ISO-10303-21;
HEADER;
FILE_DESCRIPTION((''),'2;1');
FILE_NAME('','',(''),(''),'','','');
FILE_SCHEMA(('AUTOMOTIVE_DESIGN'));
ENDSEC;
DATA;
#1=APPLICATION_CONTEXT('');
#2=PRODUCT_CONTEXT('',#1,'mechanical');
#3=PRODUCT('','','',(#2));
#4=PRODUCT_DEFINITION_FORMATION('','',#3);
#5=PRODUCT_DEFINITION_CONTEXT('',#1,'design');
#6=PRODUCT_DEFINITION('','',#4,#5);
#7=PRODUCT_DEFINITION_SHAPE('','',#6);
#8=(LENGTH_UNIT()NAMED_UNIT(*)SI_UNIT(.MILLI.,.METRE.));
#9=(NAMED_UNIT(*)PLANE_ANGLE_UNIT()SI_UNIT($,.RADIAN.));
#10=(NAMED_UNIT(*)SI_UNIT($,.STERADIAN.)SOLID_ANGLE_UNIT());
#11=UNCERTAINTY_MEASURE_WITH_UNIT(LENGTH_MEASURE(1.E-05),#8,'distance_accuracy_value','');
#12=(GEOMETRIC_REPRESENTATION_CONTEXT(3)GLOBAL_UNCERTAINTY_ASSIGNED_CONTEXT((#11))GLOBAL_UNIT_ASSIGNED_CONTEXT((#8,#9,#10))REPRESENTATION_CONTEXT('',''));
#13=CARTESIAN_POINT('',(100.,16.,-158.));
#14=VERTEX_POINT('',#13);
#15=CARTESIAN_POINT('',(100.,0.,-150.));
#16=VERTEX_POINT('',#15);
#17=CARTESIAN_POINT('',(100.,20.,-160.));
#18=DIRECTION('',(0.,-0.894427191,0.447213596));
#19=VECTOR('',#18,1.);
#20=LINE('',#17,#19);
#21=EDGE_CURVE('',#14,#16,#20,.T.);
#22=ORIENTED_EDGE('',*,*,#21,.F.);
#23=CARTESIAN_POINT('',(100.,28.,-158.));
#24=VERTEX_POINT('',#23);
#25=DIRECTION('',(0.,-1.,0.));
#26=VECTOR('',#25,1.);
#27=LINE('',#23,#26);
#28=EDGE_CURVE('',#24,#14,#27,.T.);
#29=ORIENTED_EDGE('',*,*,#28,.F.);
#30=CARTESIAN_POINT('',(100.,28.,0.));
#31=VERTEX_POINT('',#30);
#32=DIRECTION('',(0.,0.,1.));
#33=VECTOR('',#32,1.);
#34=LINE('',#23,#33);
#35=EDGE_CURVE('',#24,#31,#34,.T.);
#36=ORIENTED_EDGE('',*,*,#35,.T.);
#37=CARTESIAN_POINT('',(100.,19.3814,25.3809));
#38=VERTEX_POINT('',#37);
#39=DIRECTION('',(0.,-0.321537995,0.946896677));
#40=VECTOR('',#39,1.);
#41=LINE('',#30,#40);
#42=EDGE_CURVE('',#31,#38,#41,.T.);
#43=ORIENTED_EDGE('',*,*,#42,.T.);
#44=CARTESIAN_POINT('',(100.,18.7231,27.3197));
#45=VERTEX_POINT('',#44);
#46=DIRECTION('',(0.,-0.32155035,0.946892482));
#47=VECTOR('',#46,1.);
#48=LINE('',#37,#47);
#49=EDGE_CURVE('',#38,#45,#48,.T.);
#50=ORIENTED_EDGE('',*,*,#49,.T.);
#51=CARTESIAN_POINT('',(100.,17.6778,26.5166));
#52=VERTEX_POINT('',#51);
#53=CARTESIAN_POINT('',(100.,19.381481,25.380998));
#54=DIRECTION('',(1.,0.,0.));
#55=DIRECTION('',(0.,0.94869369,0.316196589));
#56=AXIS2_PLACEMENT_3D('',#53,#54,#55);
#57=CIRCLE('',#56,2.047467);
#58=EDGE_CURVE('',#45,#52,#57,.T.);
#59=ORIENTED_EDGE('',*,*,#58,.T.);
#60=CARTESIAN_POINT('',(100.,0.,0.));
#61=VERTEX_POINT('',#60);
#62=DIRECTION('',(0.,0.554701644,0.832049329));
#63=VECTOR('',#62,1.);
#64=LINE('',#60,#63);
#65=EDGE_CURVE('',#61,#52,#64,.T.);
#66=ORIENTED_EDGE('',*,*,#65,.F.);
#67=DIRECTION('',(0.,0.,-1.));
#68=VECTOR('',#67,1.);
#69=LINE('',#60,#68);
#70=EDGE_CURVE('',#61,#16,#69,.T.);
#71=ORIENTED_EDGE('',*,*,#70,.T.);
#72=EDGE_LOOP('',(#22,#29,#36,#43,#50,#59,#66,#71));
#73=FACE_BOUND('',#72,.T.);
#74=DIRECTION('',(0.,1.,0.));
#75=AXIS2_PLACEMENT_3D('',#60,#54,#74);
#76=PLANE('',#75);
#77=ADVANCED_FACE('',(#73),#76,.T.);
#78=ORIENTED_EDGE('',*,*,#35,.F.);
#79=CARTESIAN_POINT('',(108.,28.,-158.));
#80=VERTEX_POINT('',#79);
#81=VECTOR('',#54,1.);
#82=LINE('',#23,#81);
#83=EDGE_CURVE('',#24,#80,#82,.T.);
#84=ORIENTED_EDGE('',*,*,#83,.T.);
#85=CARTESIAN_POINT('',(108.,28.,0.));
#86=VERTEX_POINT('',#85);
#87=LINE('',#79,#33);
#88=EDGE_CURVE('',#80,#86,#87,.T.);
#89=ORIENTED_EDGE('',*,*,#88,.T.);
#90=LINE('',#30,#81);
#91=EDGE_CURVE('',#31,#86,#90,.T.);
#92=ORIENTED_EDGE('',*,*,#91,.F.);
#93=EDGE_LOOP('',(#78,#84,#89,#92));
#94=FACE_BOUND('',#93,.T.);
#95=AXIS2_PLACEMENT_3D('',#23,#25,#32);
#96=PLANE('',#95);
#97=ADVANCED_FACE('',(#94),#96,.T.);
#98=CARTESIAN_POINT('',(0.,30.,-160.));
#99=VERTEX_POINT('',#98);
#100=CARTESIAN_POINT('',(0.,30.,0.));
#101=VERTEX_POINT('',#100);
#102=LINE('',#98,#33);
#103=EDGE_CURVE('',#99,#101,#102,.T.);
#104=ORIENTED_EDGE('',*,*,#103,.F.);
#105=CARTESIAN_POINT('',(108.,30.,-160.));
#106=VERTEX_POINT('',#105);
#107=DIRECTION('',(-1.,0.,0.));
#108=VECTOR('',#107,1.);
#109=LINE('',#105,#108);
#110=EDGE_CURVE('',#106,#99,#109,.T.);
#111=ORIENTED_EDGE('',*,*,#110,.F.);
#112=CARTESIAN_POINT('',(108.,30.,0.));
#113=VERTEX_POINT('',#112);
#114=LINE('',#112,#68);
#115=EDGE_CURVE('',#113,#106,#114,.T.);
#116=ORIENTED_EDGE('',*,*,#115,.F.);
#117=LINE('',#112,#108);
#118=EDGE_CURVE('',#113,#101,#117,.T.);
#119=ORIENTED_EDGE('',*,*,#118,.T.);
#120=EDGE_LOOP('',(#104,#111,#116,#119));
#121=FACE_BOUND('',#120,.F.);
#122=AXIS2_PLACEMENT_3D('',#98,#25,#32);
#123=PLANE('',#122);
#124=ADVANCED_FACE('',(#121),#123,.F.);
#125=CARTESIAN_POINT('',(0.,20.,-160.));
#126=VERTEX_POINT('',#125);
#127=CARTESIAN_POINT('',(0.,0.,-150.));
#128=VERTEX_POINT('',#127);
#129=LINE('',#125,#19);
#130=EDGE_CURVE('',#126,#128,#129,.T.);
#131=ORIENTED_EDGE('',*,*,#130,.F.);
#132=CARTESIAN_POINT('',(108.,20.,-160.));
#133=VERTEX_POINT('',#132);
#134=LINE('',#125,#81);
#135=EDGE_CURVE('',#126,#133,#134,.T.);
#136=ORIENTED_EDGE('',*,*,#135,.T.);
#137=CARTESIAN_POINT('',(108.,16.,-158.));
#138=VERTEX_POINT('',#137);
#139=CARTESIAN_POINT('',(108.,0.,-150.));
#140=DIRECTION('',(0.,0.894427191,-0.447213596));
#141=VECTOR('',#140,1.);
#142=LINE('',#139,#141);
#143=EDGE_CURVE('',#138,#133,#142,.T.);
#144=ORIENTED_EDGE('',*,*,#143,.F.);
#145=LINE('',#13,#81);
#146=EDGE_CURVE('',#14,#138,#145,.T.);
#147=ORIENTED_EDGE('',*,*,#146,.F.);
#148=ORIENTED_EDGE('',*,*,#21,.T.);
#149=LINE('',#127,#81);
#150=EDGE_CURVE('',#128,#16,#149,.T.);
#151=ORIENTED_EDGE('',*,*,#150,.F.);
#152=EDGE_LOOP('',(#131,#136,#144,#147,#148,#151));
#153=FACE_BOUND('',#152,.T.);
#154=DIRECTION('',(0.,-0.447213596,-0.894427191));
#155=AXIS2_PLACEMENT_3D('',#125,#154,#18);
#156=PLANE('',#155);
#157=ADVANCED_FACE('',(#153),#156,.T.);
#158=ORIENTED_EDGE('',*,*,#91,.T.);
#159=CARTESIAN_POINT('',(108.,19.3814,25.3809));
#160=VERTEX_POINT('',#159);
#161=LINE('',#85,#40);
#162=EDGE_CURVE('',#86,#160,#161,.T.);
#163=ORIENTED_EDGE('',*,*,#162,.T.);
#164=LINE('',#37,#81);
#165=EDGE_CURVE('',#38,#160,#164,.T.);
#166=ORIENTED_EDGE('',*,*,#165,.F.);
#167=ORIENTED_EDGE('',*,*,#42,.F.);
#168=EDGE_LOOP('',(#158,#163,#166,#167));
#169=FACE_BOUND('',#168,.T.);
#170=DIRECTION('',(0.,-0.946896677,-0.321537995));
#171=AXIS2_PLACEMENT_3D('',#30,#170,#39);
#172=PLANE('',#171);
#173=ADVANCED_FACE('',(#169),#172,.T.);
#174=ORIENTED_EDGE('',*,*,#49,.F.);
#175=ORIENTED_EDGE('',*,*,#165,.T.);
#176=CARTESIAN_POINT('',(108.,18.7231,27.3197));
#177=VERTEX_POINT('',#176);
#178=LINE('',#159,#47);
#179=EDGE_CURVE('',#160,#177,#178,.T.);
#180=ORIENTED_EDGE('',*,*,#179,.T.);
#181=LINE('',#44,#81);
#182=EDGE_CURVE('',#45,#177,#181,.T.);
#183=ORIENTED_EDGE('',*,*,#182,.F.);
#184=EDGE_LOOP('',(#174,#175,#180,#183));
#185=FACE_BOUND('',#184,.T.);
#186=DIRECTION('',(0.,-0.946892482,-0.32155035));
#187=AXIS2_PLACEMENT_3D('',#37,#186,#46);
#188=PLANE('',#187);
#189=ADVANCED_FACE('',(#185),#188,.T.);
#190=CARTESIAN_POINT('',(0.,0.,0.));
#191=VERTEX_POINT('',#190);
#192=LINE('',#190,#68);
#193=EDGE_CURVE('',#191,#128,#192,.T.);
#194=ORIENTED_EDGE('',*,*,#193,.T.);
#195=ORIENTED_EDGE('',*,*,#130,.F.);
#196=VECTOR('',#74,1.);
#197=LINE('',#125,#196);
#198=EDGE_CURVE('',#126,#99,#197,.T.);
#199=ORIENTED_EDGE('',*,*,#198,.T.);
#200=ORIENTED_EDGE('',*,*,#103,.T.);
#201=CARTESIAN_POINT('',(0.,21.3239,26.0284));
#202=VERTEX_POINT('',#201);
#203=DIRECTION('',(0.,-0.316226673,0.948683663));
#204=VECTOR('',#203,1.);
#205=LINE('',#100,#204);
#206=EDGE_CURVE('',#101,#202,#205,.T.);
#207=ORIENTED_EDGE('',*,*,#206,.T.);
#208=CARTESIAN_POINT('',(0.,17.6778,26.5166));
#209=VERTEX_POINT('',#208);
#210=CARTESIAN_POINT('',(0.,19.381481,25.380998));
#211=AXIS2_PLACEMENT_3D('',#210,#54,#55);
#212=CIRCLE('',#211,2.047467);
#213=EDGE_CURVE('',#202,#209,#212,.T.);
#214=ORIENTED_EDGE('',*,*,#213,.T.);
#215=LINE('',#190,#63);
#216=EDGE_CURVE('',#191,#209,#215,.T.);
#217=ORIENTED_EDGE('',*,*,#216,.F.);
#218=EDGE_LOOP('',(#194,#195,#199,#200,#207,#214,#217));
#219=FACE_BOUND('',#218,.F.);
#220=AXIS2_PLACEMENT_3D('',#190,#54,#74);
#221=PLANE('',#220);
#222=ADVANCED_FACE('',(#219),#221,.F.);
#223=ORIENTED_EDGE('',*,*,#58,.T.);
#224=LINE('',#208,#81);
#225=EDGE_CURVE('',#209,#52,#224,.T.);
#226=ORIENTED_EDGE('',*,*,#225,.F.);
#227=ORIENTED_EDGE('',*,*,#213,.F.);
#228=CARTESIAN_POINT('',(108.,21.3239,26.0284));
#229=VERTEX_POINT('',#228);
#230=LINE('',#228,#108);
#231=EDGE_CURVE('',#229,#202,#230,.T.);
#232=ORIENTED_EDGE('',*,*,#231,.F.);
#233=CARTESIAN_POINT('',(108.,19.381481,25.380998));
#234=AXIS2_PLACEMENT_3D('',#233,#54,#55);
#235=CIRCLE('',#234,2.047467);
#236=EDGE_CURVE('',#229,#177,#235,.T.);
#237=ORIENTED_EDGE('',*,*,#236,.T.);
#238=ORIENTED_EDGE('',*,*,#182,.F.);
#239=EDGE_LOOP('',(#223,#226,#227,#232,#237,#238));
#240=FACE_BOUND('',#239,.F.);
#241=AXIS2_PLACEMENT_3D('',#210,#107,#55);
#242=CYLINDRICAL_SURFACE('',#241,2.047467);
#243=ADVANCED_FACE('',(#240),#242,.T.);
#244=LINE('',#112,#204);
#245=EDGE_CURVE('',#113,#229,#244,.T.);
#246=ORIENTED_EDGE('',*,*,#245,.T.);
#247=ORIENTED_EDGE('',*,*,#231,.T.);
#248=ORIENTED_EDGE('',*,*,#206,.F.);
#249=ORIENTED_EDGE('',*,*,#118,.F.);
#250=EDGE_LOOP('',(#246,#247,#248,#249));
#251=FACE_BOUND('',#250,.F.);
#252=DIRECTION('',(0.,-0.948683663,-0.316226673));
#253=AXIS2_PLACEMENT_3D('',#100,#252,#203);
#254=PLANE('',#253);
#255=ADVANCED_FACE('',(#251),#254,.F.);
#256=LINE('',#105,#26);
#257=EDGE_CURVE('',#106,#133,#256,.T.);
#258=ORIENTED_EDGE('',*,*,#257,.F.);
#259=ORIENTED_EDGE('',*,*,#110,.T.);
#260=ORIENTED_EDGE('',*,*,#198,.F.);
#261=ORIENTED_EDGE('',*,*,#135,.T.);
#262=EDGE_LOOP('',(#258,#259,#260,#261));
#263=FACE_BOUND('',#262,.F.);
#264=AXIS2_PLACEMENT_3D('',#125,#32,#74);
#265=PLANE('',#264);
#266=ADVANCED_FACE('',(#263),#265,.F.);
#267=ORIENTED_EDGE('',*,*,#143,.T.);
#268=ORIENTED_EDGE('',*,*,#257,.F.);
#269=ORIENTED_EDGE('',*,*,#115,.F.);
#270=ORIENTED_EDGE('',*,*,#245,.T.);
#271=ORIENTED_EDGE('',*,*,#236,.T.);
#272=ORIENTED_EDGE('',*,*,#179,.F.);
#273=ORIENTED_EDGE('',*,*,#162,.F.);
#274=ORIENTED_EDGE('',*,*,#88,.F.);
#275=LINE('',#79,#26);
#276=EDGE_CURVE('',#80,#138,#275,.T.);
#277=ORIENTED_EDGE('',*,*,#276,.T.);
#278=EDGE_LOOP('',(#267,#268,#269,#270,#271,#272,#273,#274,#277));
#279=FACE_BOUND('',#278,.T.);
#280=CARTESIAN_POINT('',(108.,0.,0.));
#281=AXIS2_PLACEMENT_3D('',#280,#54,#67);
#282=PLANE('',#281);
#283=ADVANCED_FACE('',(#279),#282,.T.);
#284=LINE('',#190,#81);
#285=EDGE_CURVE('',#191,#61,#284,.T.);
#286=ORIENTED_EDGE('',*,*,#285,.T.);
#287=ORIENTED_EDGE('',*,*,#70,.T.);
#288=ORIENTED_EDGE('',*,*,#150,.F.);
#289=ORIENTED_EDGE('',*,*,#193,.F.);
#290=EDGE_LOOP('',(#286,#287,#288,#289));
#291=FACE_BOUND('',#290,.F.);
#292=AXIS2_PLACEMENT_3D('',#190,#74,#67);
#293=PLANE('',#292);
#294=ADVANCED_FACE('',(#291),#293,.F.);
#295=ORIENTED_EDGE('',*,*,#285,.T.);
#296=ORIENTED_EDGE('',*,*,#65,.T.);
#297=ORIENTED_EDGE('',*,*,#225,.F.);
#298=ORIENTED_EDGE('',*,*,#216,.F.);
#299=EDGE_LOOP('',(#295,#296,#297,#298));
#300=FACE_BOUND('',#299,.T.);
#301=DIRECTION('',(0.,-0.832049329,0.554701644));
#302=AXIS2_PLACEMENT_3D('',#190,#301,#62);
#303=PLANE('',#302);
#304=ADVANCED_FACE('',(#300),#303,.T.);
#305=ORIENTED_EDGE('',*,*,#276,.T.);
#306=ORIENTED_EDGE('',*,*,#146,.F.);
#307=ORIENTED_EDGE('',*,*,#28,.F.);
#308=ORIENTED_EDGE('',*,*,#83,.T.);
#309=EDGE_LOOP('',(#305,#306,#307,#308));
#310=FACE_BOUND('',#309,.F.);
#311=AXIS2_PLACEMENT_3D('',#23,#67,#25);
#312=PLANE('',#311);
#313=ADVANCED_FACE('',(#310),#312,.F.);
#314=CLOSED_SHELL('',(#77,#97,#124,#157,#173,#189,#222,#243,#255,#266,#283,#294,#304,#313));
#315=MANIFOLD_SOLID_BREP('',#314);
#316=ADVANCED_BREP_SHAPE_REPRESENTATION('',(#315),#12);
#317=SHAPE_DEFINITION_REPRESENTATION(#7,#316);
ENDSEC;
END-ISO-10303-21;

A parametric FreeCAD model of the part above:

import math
import FreeCAD as App
import Part
import Sketcher

V = App.Vector
Q = App.Units.Quantity

doc = App.newDocument("Part")
body = doc.addObject("PartDesign::Body", "Body")

# Sketch on YZ plane
sketch1 = body.newObject("Sketcher::SketchObject", "Sketch")
sketch1.AttachmentSupport = (doc.getObject("YZ_Plane"), [""])
sketch1.MapMode = "FlatFace"
sketch1.addGeometry([
    Part.LineSegment(V(17.6778, 26.5166, 0), V(0, 0, 0)),  # 0
    Part.LineSegment(V(0, 0, 0), V(0, -150, 0)),  # 1
    Part.LineSegment(V(0, -150, 0), V(20, -160, 0)),  # 2
    Part.LineSegment(V(20, -160, 0), V(30, -160, 0)),  # 3
    Part.LineSegment(V(30, -160, 0), V(30, 0, 0)),  # 4
    Part.LineSegment(V(30, 0, 0), V(21.3239, 26.0284, 0)),  # 5
    Part.ArcOfCircle(Part.Circle(V(19.3814, 25.3809, 0), V(0, 0, 1), 2.047575), math.radians(18.434949), math.radians(146.310709)),  # 6
], False)
sketch1.addConstraint([
    Sketcher.Constraint("Coincident", 0, 2, 1, 1),
    Sketcher.Constraint("Coincident", 1, 2, 2, 1),
    Sketcher.Constraint("Coincident", 2, 2, 3, 1),
    Sketcher.Constraint("Coincident", 3, 2, 4, 1),
    Sketcher.Constraint("Coincident", 4, 2, 5, 1),
    Sketcher.Constraint("Tangent", 5, 2, 6, 1),
    Sketcher.Constraint("Tangent", 6, 2, 0, 1),
    Sketcher.Constraint("Vertical", 1),
    Sketcher.Constraint("Horizontal", 3),
    Sketcher.Constraint("Vertical", 4),
    Sketcher.Constraint("Coincident", 0, 2, -1, 1),
    Sketcher.Constraint("PointOnObject", 4, 2, -1),
    Sketcher.Constraint("DistanceY", 1, 2, 1, 1, Q("150 mm")),
    Sketcher.Constraint("DistanceX", -1, 1, 3, 2, Q("30 mm")),
    Sketcher.Constraint("DistanceX", 3, 1, 3, 2, Q("10 mm")),
    Sketcher.Constraint("DistanceY", 4, 1, 4, 2, Q("160 mm")),
    Sketcher.Constraint("Angle", 0, Q("-123.6902 deg")),
    Sketcher.Constraint("Radius", 6, Q("2.0476 mm")),
    Sketcher.Constraint("Distance", 0, Q("31.869 mm")),
])
pad1 = body.newObject("PartDesign::Pad", "Pad")
pad1.Profile = sketch1
pad1.Length = 100

# Sketch on YZ plane
sketch2 = body.newObject("Sketcher::SketchObject", "Sketch001")
sketch2.AttachmentSupport = (doc.getObject("YZ_Plane"), [""])
sketch2.MapMode = "FlatFace"
sketch2.AttachmentOffset = App.Placement(V(0, 0, 100), App.Rotation())
sketch2.addGeometry([
    Part.LineSegment(V(30, -160, 0), V(30, 0, 0)),  # 0
    Part.LineSegment(V(30, 0, 0), V(21.3239, 26.0284, 0)),  # 1
    Part.ArcOfCircle(Part.Circle(V(19.3814, 25.3809, 0), V(0, 0, 1), 2.047575), math.radians(18.434949), math.radians(108.754401)),  # 2
    Part.LineSegment(V(18.723022, 27.319673, 0), V(19.3814, 25.3809, 0)),  # 3
    Part.LineSegment(V(19.3814, 25.3809, 0), V(28, 0, 0)),  # 4
    Part.LineSegment(V(28, 0, 0), V(28, -158, 0)),  # 5
    Part.LineSegment(V(28, -158, 0), V(16, -158, 0)),  # 6
    Part.LineSegment(V(16, -158, 0), V(20, -160, 0)),  # 7
    Part.LineSegment(V(20, -160, 0), V(30, -160, 0)),  # 8
], False)
sketch2.addConstraint([
    Sketcher.Constraint("Coincident", 0, 2, 1, 1),
    Sketcher.Constraint("Tangent", 1, 2, 2, 1),
    Sketcher.Constraint("Coincident", 2, 2, 3, 1),
    Sketcher.Constraint("Coincident", 3, 2, 4, 1),
    Sketcher.Constraint("Coincident", 4, 2, 5, 1),
    Sketcher.Constraint("Coincident", 5, 2, 6, 1),
    Sketcher.Constraint("Coincident", 6, 2, 7, 1),
    Sketcher.Constraint("Coincident", 7, 2, 8, 1),
    Sketcher.Constraint("Coincident", 8, 2, 0, 1),
    Sketcher.Constraint("Vertical", 0),
    Sketcher.Constraint("Vertical", 5),
    Sketcher.Constraint("Horizontal", 6),
    Sketcher.Constraint("Horizontal", 8),
    Sketcher.Constraint("Coincident", 3, 2, 2, 3),
    Sketcher.Constraint("PointOnObject", 0, 2, -1),
    Sketcher.Constraint("PointOnObject", 4, 2, -1),
    Sketcher.Constraint("Parallel", 3, 4),
    Sketcher.Constraint("DistanceX", 4, 2, 0, 2, Q("2 mm")),
    Sketcher.Constraint("DistanceY", 7, 2, 6, 2, Q("2 mm")),
    Sketcher.Constraint("DistanceX", 6, 2, 6, 1, Q("12 mm")),
    Sketcher.Constraint("DistanceX", 8, 1, 8, 2, Q("10 mm")),
    Sketcher.Constraint("DistanceY", 0, 1, 0, 2, Q("160 mm")),
    Sketcher.Constraint("DistanceX", -1, 1, 0, 2, Q("30 mm")),
    Sketcher.Constraint("Radius", 2, Q("2.0476 mm")),
    Sketcher.Constraint("DistanceY", -1, 1, 2, 3, Q("25.381 mm")),
    Sketcher.Constraint("DistanceX", -1, 1, 1, 2, Q("21.324 mm")),
])
pad2 = body.newObject("PartDesign::Pad", "Pad001")
pad2.Profile = sketch2
pad2.Length = 8

doc.recompute()
